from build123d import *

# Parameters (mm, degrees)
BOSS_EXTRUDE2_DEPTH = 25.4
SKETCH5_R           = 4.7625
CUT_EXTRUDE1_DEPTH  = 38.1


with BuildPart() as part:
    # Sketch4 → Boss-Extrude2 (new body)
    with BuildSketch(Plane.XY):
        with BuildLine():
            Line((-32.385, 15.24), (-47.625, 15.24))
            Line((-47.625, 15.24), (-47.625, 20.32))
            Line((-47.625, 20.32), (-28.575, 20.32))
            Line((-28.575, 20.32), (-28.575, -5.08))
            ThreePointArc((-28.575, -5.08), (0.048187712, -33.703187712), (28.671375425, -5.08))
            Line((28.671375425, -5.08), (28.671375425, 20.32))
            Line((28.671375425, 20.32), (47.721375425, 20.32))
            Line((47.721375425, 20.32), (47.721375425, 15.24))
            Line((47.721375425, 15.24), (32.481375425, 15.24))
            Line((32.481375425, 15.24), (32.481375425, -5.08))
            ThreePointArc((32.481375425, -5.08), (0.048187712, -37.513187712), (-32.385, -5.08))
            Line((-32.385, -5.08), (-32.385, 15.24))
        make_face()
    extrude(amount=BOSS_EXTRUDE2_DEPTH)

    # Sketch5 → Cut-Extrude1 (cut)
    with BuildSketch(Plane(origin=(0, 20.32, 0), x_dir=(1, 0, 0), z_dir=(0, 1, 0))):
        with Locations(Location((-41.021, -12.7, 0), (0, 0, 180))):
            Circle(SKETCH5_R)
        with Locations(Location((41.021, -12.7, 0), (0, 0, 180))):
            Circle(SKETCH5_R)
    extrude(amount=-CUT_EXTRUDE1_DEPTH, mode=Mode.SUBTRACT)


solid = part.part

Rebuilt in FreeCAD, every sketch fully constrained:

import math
import FreeCAD as App
import Part
import Sketcher
from FreeCAD import Vector
Q = App.Units.Quantity

doc = App.newDocument("Part")
body = doc.addObject("PartDesign::Body", "Body")

# Sketch on XY plane
sketch1 = body.newObject("Sketcher::SketchObject", "Sketch")
sketch1.AttachmentSupport = (doc.getObject("XY_Plane"), [""])
sketch1.MapMode = "FlatFace"
sketch1.addGeometry([
    Part.LineSegment(Vector(-48, 15, 0), Vector(-32, 15, 0)),  # 0
    Part.LineSegment(Vector(-32, 15, 0), Vector(-32, -5, 0)),  # 1
    Part.ArcOfCircle(Part.Circle(Vector(0, -5, 0), Vector(0, 0, 1), 32), math.radians(-180), math.radians(0)),  # 2
    Part.LineSegment(Vector(32, -5, 0), Vector(32, 15, 0)),  # 3
    Part.LineSegment(Vector(32, 15, 0), Vector(48, 15, 0)),  # 4
    Part.LineSegment(Vector(48, 15, 0), Vector(48, 20, 0)),  # 5
    Part.LineSegment(Vector(48, 20, 0), Vector(29, 20, 0)),  # 6
    Part.LineSegment(Vector(29, 20, 0), Vector(29, -5, 0)),  # 7
    Part.ArcOfCircle(Part.Circle(Vector(0, -5, 0), Vector(0, 0, 1), 29), math.radians(180), math.radians(360)),  # 8
    Part.LineSegment(Vector(-29, -5, 0), Vector(-29, 20, 0)),  # 9
    Part.LineSegment(Vector(-29, 20, 0), Vector(-48, 20, 0)),  # 10
    Part.LineSegment(Vector(-48, 20, 0), Vector(-48, 15, 0)),  # 11
], False)
sketch1.addConstraint([
    Sketcher.Constraint("Coincident", 0, 2, 1, 1),
    Sketcher.Constraint("Tangent", 1, 2, 2, 1),
    Sketcher.Constraint("Tangent", 2, 2, 3, 1),
    Sketcher.Constraint("Coincident", 3, 2, 4, 1),
    Sketcher.Constraint("Coincident", 4, 2, 5, 1),
    Sketcher.Constraint("Coincident", 5, 2, 6, 1),
    Sketcher.Constraint("Coincident", 6, 2, 7, 1),
    Sketcher.Constraint("Tangent", 7, 2, 8, 2),
    Sketcher.Constraint("Tangent", 8, 1, 9, 1),
    Sketcher.Constraint("Coincident", 9, 2, 10, 1),
    Sketcher.Constraint("Coincident", 10, 2, 11, 1),
    Sketcher.Constraint("Coincident", 11, 2, 0, 1),
    Sketcher.Constraint("Horizontal", 0),
    Sketcher.Constraint("Vertical", 1),
    Sketcher.Constraint("Vertical", 3),
    Sketcher.Constraint("Horizontal", 4),
    Sketcher.Constraint("Vertical", 5),
    Sketcher.Constraint("Horizontal", 6),
    Sketcher.Constraint("Vertical", 7),
    Sketcher.Constraint("Vertical", 9),
    Sketcher.Constraint("Horizontal", 10),
    Sketcher.Constraint("Vertical", 11),
    Sketcher.Constraint("Coincident", 8, 3, 2, 3),
    Sketcher.Constraint("Horizontal", 0, 2, 3, 2),
    Sketcher.Constraint("Horizontal", 6, 2, 9, 2),
    Sketcher.Constraint("Equal", 0, 4),
    Sketcher.Constraint("DistanceY", 7, 2, 7, 1, Q("1 in")),
    Sketcher.Constraint("DistanceX", 0, 1, 0, 2, Q("0.6 in")),
    Sketcher.Constraint("DistanceY", 1, 2, 1, 1, Q("0.8 in")),
    Sketcher.Constraint("DistanceX", 6, 2, 6, 1, Q("0.75 in")),
    Sketcher.Constraint("DistanceY", 2, 3, -1, 1, Q("0.2 in")),
    Sketcher.Constraint("DistanceX", 0, 2, -1, 1, Q("1.275 in")),
    Sketcher.Constraint("Radius", 2, 32.433188),
])
pad1 = body.newObject("PartDesign::Pad", "Pad")
pad1.Profile = sketch1
pad1.Length = Q("1 in")

# Sketch on XZ plane
sketch2 = body.newObject("Sketcher::SketchObject", "Sketch001")
sketch2.AttachmentSupport = (doc.getObject("XZ_Plane"), [""])
sketch2.MapMode = "FlatFace"
sketch2.AttachmentOffset = App.Placement(Vector(0, 0, -0.8 * 25.4), App.Rotation())
sketch2.addGeometry([
    Part.Circle(Vector(-41, 12.7, 0), Vector(0, 0, 1), 4.8),
    Part.Circle(Vector(41, 12.7, 0), Vector(0, 0, 1), 4.8),
], False)
sketch2.addConstraint([
    Sketcher.Constraint("Equal", 0, 1),
    Sketcher.Constraint("Symmetric", 0, 3, 1, 3, -2),
    Sketcher.Constraint("Diameter", 0, Q("0.375 in")),
    Sketcher.Constraint("DistanceY", -1, 1, 0, 3, Q("0.5 in")),
    Sketcher.Constraint("DistanceX", 0, 3, 1, 3, Q("3.23 in")),
])
pocket1 = body.newObject("PartDesign::Pocket", "Pocket")
pocket1.Profile = sketch2
pocket1.Length = Q("1.5 in")
pocket1.Reversed = True

doc.recompute()
